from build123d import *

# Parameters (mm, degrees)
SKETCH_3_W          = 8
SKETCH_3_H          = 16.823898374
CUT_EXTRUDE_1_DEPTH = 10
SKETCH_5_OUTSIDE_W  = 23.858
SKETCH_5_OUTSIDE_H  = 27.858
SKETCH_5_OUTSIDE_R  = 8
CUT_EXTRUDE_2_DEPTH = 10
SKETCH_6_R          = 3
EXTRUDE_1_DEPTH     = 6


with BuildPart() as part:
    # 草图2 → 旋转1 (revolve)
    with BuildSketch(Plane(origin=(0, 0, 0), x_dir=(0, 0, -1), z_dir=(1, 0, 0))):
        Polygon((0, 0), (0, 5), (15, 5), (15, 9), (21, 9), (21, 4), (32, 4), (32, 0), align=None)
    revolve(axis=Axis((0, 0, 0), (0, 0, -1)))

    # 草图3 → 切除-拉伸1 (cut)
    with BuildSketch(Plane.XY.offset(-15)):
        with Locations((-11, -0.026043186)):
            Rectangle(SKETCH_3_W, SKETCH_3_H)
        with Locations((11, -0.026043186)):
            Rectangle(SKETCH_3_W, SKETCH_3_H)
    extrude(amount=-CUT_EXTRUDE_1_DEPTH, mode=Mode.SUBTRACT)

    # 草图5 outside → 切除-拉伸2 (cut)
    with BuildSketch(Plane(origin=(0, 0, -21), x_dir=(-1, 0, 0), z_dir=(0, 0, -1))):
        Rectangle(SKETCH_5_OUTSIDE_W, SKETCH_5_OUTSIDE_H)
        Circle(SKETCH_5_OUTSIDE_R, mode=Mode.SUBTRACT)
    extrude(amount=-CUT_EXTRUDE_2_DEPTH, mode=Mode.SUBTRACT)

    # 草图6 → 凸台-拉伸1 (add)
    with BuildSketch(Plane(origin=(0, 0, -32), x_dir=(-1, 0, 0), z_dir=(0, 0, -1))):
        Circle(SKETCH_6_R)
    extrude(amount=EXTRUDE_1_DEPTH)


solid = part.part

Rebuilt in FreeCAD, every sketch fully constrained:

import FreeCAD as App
import Part
import Sketcher
Q = App.Units.Quantity

doc = App.newDocument("Part")
body = doc.addObject("PartDesign::Body", "Body")

# Sketch on YZ plane
sketch1 = doc.addObject("Sketcher::SketchObject", "Sketch")
body.addObject(sketch1)
sketch1.AttachmentSupport = (doc.YZ_Plane, [""])
sketch1.MapMode = "FlatFace"
sketch1.addGeometry([
    Part.LineSegment(App.Vector(5, 0, 0), App.Vector(0, 0, 0)),  # 0
    Part.LineSegment(App.Vector(0, 0, 0), App.Vector(0, -32, 0)),  # 1
    Part.LineSegment(App.Vector(0, -32, 0), App.Vector(4, -32, 0)),  # 2
    Part.LineSegment(App.Vector(4, -32, 0), App.Vector(4, -21, 0)),  # 3
    Part.LineSegment(App.Vector(4, -21, 0), App.Vector(9, -21, 0)),  # 4
    Part.LineSegment(App.Vector(9, -21, 0), App.Vector(9, -15, 0)),  # 5
    Part.LineSegment(App.Vector(9, -15, 0), App.Vector(5, -15, 0)),  # 6
    Part.LineSegment(App.Vector(5, -15, 0), App.Vector(5, 0, 0)),  # 7
], False)
sketch1.addConstraint([
    Sketcher.Constraint("Coincident", 0, 2, 1, 1),
    Sketcher.Constraint("Coincident", 1, 2, 2, 1),
    Sketcher.Constraint("Coincident", 2, 2, 3, 1),
    Sketcher.Constraint("Coincident", 3, 2, 4, 1),
    Sketcher.Constraint("Coincident", 4, 2, 5, 1),
    Sketcher.Constraint("Coincident", 5, 2, 6, 1),
    Sketcher.Constraint("Coincident", 6, 2, 7, 1),
    Sketcher.Constraint("Coincident", 7, 2, 0, 1),
    Sketcher.Constraint("Horizontal", 0),
    Sketcher.Constraint("Vertical", 1),
    Sketcher.Constraint("Horizontal", 2),
    Sketcher.Constraint("Vertical", 3),
    Sketcher.Constraint("Horizontal", 4),
    Sketcher.Constraint("Vertical", 5),
    Sketcher.Constraint("Horizontal", 6),
    Sketcher.Constraint("Vertical", 7),
    Sketcher.Constraint("Coincident", 0, 2, -1, 1),
    Sketcher.Constraint("Equal", 0, 4),
    Sketcher.Constraint("DistanceX", 0, 2, 0, 1, Q("5 mm")),
    Sketcher.Constraint("DistanceX", 2, 1, 2, 2, Q("4 mm")),
    Sketcher.Constraint("DistanceY", 1, 2, 1, 1, Q("32 mm")),
    Sketcher.Constraint("DistanceY", 3, 1, 3, 2, Q("11 mm")),
    Sketcher.Constraint("DistanceY", 5, 1, 5, 2, Q("6 mm")),
])
revolution = doc.addObject("PartDesign::Revolution", "Revolution")
body.addObject(revolution)
revolution.Profile = sketch1
revolution.ReferenceAxis = (sketch1, ["V_Axis"])
revolution.Angle = 360

# Sketch on XY plane
sketch2 = doc.addObject("Sketcher::SketchObject", "Sketch001")
body.addObject(sketch2)
sketch2.AttachmentSupport = (doc.XY_Plane, [""])
sketch2.MapMode = "FlatFace"
sketch2.AttachmentOffset = App.Placement(App.Vector(0, 0, -15), App.Rotation())
sketch2.addGeometry([
    Part.LineSegment(App.Vector(-15, 8, 0), App.Vector(-15, -8, 0)),  # 0
    Part.LineSegment(App.Vector(-15, -8, 0), App.Vector(-7, -8, 0)),  # 1
    Part.LineSegment(App.Vector(-7, -8, 0), App.Vector(-7, 8, 0)),  # 2
    Part.LineSegment(App.Vector(-7, 8, 0), App.Vector(-15, 8, 0)),  # 3
    Part.LineSegment(App.Vector(7, 8, 0), App.Vector(7, -8, 0)),  # 4
    Part.LineSegment(App.Vector(7, -8, 0), App.Vector(15, -8, 0)),  # 5
    Part.LineSegment(App.Vector(15, -8, 0), App.Vector(15, 8, 0)),  # 6
    Part.LineSegment(App.Vector(15, 8, 0), App.Vector(7, 8, 0)),  # 7
], False)
sketch2.addConstraint([
    Sketcher.Constraint("Coincident", 0, 2, 1, 1),
    Sketcher.Constraint("Coincident", 1, 2, 2, 1),
    Sketcher.Constraint("Coincident", 2, 2, 3, 1),
    Sketcher.Constraint("Coincident", 3, 2, 0, 1),
    Sketcher.Constraint("Coincident", 4, 2, 5, 1),
    Sketcher.Constraint("Coincident", 5, 2, 6, 1),
    Sketcher.Constraint("Coincident", 6, 2, 7, 1),
    Sketcher.Constraint("Coincident", 7, 2, 4, 1),
    Sketcher.Constraint("Vertical", 0),
    Sketcher.Constraint("Horizontal", 1),
    Sketcher.Constraint("Vertical", 2),
    Sketcher.Constraint("Horizontal", 3),
    Sketcher.Constraint("Vertical", 4),
    Sketcher.Constraint("Horizontal", 5),
    Sketcher.Constraint("Vertical", 6),
    Sketcher.Constraint("Horizontal", 7),
    Sketcher.Constraint("Symmetric", 1, 2, 4, 2, -2),
    Sketcher.Constraint("Symmetric", 3, 2, 6, 2, -2),
    Sketcher.Constraint("DistanceX", 1, 1, 1, 2, Q("8 mm")),
    Sketcher.Constraint("DistanceX", 0, 2, -1, 1, Q("15 mm")),
    Sketcher.Constraint("DistanceY", 0, 2, 0, 1, Q("16.823898 mm")),
    Sketcher.Constraint("DistanceY", 0, 2, -1, 1, Q("8.437992 mm")),
])
pocket1 = doc.addObject("PartDesign::Pocket", "Pocket")
body.addObject(pocket1)
pocket1.Profile = sketch2
pocket1.Length = 10

# Sketch on XY plane
sketch3 = doc.addObject("Sketcher::SketchObject", "Sketch002")
body.addObject(sketch3)
sketch3.AttachmentSupport = (doc.XY_Plane, [""])
sketch3.MapMode = "FlatFace"
sketch3.AttachmentOffset = App.Placement(App.Vector(0, 0, -21), App.Rotation())
sketch3.addGeometry([
    Part.LineSegment(App.Vector(12, 14, 0), App.Vector(12, -14, 0)),  # 0
    Part.LineSegment(App.Vector(12, -14, 0), App.Vector(-12, -14, 0)),  # 1
    Part.LineSegment(App.Vector(-12, -14, 0), App.Vector(-12, 14, 0)),  # 2
    Part.LineSegment(App.Vector(-12, 14, 0), App.Vector(12, 14, 0)),  # 3
    Part.Circle(App.Vector(0, 0, 0), App.Vector(0, 0, 1), 8),  # 4
], False)
sketch3.addConstraint([
    Sketcher.Constraint("Coincident", 0, 2, 1, 1),
    Sketcher.Constraint("Coincident", 1, 2, 2, 1),
    Sketcher.Constraint("Coincident", 2, 2, 3, 1),
    Sketcher.Constraint("Coincident", 3, 2, 0, 1),
    Sketcher.Constraint("Vertical", 0),
    Sketcher.Constraint("Horizontal", 1),
    Sketcher.Constraint("Vertical", 2),
    Sketcher.Constraint("Horizontal", 3),
    Sketcher.Constraint("Coincident", 4, 3, -1, 1),
    Sketcher.Constraint("Symmetric", 0, 2, 2, 2, -1, 1),
    Sketcher.Constraint("Diameter", 4, Q("16 mm")),
    Sketcher.Constraint("DistanceX", 1, 2, 1, 1, Q("23.858 mm")),
    Sketcher.Constraint("DistanceY", 0, 2, 0, 1, Q("27.858 mm")),
])
pocket2 = doc.addObject("PartDesign::Pocket", "Pocket001")
body.addObject(pocket2)
pocket2.Profile = sketch3
pocket2.Length = 10
pocket2.Reversed = True

# Sketch on XY plane
sketch4 = doc.addObject("Sketcher::SketchObject", "Sketch003")
body.addObject(sketch4)
sketch4.AttachmentSupport = (doc.XY_Plane, [""])
sketch4.MapMode = "FlatFace"
sketch4.AttachmentOffset = App.Placement(App.Vector(0, 0, -32), App.Rotation())
sketch4.addGeometry(Part.Circle(App.Vector(0, 0, 0), App.Vector(0, 0, 1), 3), False)
sketch4.addConstraint([
    Sketcher.Constraint("Coincident", 0, 3, -1, 1),
    Sketcher.Constraint("Diameter", 0, Q("6 mm")),
])
pad1 = doc.addObject("PartDesign::Pad", "Pad")
body.addObject(pad1)
pad1.Profile = sketch4
pad1.Length = 6
pad1.Reversed = True

doc.recompute()
